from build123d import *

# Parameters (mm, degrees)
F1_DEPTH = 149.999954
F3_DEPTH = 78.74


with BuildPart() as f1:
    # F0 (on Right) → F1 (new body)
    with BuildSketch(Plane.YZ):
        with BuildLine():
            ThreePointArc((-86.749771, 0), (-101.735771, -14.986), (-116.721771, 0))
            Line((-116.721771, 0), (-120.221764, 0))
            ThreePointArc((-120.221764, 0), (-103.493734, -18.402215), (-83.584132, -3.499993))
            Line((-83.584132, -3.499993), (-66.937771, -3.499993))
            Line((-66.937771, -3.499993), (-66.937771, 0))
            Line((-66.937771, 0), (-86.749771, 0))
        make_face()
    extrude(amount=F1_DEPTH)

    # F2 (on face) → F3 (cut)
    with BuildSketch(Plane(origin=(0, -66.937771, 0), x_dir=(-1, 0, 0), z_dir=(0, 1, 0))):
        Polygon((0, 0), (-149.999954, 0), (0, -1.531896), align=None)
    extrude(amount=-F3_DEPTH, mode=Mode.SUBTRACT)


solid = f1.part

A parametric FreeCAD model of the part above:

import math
import FreeCAD as App
import Part
import Sketcher
Q = App.Units.Quantity

doc = App.newDocument("Part")
params = doc.addObject("Spreadsheet::Sheet", "Params")
for row, (alias, value) in enumerate([
    ("sketch1_radius", "0.59 in"),
    ("sketch1_width", "0.78 in"),
    ("pad1_length", "149.999954 mm"),
    ("pocket1_length", "3.1 in"),
], start=1):
    params.set(f"A{row}", alias)
    params.set(f"B{row}", "=" + value)
    params.setAlias(f"B{row}", alias)

body = doc.addObject("PartDesign::Body", "Body")

sketch1 = body.newObject("Sketcher::SketchObject", "Sketch")
sketch1.AttachmentSupport = (doc.getObject("YZ_Plane"), [""])
sketch1.MapMode = "FlatFace"
sketch1.addGeometry(Part.ArcOfCircle(Part.Circle(App.Vector(-101.7, 0, 0), App.Vector(0, 0, 1), 15), math.radians(180), math.radians(360)), False)
sketch1.addGeometry(Part.LineSegment(App.Vector(-116.7, 0, 0), App.Vector(-120.2, 0, 0)), False)
sketch1.addGeometry(Part.ArcOfCircle(Part.Circle(App.Vector(-101.7, 0, 0), App.Vector(0, 0, 1), 18.5), math.radians(180), math.radians(349)), False)
sketch1.addGeometry(Part.LineSegment(App.Vector(-83.6, -3.5, 0), App.Vector(-66.9, -3.5, 0)), False)
sketch1.addGeometry(Part.LineSegment(App.Vector(-66.9, -3.5, 0), App.Vector(-66.9, 0, 0)), False)
sketch1.addGeometry(Part.LineSegment(App.Vector(-66.9, 0, 0), App.Vector(-86.7, 0, 0)), False)
sketch1.addConstraint(Sketcher.Constraint("Coincident", 0, 1, 1, 1))
sketch1.addConstraint(Sketcher.Constraint("Coincident", 1, 2, 2, 1))
sketch1.addConstraint(Sketcher.Constraint("Coincident", 2, 2, 3, 1))
sketch1.addConstraint(Sketcher.Constraint("Coincident", 3, 2, 4, 1))
sketch1.addConstraint(Sketcher.Constraint("Coincident", 4, 2, 5, 1))
sketch1.addConstraint(Sketcher.Constraint("Coincident", 5, 2, 0, 2))
sketch1.addConstraint(Sketcher.Constraint("Horizontal", 1))
sketch1.addConstraint(Sketcher.Constraint("Horizontal", 3))
sketch1.addConstraint(Sketcher.Constraint("Vertical", 4))
sketch1.addConstraint(Sketcher.Constraint("Horizontal", 5))
sketch1.addConstraint(Sketcher.Constraint("Coincident", 2, 3, 0, 3))
sketch1.addConstraint(Sketcher.Constraint("PointOnObject", 0, 3, -1))
sketch1.addConstraint(Sketcher.Constraint("PointOnObject", 0, 1, -1))
sketch1.addConstraint(Sketcher.Constraint("PointOnObject", 4, 2, -1))
sketch1.addConstraint(Sketcher.Constraint("Equal", 1, 4))
sketch1.addConstraint(Sketcher.Constraint("Radius", 0, Q("0.59 in")))
sketch1.addConstraint(Sketcher.Constraint("DistanceX", 5, 2, 5, 1, Q("0.78 in")))
sketch1.addConstraint(Sketcher.Constraint("Radius", 2, 18.485993))
sketch1.addConstraint(Sketcher.Constraint("DistanceX", 0, 3, -1, 1, 101.735771))
sketch1.setExpression("Constraints[15]", "Params.sketch1_radius")
sketch1.setExpression("Constraints[16]", "Params.sketch1_width")
pad1 = body.newObject("PartDesign::Pad", "Pad")
pad1.Profile = sketch1
pad1.setExpression("Length", "Params.pad1_length")

sketch2 = body.newObject("Sketcher::SketchObject", "Sketch001")
sketch2.AttachmentSupport = (doc.getObject("XZ_Plane"), [""])
sketch2.MapMode = "FlatFace"
sketch2.AttachmentOffset = App.Placement(App.Vector(0, 0, 66.937771), App.Rotation())
sketch2.addGeometry(Part.LineSegment(App.Vector(0, 0, 0), App.Vector(150, 0, 0)), False)
sketch2.addGeometry(Part.LineSegment(App.Vector(150, 0, 0), App.Vector(0, -1.5, 0)), False)
sketch2.addGeometry(Part.LineSegment(App.Vector(0, -1.5, 0), App.Vector(0, 0, 0)), False)
sketch2.addConstraint(Sketcher.Constraint("Coincident", 0, 2, 1, 1))
sketch2.addConstraint(Sketcher.Constraint("Coincident", 1, 2, 2, 1))
sketch2.addConstraint(Sketcher.Constraint("Coincident", 2, 2, 0, 1))
sketch2.addConstraint(Sketcher.Constraint("Horizontal", 0))
sketch2.addConstraint(Sketcher.Constraint("Vertical", 2))
sketch2.addConstraint(Sketcher.Constraint("Coincident", 2, 2, -1, 1))
sketch2.addConstraint(Sketcher.Constraint("DistanceX", 0, 1, 0, 2, 149.999954))
sketch2.addConstraint(Sketcher.Constraint("DistanceY", 2, 1, 2, 2, 1.531896))
pocket1 = body.newObject("PartDesign::Pocket", "Pocket")
pocket1.Profile = sketch2
pocket1.setExpression("Length", "Params.pocket1_length")
pocket1.Reversed = True

doc.recompute()
